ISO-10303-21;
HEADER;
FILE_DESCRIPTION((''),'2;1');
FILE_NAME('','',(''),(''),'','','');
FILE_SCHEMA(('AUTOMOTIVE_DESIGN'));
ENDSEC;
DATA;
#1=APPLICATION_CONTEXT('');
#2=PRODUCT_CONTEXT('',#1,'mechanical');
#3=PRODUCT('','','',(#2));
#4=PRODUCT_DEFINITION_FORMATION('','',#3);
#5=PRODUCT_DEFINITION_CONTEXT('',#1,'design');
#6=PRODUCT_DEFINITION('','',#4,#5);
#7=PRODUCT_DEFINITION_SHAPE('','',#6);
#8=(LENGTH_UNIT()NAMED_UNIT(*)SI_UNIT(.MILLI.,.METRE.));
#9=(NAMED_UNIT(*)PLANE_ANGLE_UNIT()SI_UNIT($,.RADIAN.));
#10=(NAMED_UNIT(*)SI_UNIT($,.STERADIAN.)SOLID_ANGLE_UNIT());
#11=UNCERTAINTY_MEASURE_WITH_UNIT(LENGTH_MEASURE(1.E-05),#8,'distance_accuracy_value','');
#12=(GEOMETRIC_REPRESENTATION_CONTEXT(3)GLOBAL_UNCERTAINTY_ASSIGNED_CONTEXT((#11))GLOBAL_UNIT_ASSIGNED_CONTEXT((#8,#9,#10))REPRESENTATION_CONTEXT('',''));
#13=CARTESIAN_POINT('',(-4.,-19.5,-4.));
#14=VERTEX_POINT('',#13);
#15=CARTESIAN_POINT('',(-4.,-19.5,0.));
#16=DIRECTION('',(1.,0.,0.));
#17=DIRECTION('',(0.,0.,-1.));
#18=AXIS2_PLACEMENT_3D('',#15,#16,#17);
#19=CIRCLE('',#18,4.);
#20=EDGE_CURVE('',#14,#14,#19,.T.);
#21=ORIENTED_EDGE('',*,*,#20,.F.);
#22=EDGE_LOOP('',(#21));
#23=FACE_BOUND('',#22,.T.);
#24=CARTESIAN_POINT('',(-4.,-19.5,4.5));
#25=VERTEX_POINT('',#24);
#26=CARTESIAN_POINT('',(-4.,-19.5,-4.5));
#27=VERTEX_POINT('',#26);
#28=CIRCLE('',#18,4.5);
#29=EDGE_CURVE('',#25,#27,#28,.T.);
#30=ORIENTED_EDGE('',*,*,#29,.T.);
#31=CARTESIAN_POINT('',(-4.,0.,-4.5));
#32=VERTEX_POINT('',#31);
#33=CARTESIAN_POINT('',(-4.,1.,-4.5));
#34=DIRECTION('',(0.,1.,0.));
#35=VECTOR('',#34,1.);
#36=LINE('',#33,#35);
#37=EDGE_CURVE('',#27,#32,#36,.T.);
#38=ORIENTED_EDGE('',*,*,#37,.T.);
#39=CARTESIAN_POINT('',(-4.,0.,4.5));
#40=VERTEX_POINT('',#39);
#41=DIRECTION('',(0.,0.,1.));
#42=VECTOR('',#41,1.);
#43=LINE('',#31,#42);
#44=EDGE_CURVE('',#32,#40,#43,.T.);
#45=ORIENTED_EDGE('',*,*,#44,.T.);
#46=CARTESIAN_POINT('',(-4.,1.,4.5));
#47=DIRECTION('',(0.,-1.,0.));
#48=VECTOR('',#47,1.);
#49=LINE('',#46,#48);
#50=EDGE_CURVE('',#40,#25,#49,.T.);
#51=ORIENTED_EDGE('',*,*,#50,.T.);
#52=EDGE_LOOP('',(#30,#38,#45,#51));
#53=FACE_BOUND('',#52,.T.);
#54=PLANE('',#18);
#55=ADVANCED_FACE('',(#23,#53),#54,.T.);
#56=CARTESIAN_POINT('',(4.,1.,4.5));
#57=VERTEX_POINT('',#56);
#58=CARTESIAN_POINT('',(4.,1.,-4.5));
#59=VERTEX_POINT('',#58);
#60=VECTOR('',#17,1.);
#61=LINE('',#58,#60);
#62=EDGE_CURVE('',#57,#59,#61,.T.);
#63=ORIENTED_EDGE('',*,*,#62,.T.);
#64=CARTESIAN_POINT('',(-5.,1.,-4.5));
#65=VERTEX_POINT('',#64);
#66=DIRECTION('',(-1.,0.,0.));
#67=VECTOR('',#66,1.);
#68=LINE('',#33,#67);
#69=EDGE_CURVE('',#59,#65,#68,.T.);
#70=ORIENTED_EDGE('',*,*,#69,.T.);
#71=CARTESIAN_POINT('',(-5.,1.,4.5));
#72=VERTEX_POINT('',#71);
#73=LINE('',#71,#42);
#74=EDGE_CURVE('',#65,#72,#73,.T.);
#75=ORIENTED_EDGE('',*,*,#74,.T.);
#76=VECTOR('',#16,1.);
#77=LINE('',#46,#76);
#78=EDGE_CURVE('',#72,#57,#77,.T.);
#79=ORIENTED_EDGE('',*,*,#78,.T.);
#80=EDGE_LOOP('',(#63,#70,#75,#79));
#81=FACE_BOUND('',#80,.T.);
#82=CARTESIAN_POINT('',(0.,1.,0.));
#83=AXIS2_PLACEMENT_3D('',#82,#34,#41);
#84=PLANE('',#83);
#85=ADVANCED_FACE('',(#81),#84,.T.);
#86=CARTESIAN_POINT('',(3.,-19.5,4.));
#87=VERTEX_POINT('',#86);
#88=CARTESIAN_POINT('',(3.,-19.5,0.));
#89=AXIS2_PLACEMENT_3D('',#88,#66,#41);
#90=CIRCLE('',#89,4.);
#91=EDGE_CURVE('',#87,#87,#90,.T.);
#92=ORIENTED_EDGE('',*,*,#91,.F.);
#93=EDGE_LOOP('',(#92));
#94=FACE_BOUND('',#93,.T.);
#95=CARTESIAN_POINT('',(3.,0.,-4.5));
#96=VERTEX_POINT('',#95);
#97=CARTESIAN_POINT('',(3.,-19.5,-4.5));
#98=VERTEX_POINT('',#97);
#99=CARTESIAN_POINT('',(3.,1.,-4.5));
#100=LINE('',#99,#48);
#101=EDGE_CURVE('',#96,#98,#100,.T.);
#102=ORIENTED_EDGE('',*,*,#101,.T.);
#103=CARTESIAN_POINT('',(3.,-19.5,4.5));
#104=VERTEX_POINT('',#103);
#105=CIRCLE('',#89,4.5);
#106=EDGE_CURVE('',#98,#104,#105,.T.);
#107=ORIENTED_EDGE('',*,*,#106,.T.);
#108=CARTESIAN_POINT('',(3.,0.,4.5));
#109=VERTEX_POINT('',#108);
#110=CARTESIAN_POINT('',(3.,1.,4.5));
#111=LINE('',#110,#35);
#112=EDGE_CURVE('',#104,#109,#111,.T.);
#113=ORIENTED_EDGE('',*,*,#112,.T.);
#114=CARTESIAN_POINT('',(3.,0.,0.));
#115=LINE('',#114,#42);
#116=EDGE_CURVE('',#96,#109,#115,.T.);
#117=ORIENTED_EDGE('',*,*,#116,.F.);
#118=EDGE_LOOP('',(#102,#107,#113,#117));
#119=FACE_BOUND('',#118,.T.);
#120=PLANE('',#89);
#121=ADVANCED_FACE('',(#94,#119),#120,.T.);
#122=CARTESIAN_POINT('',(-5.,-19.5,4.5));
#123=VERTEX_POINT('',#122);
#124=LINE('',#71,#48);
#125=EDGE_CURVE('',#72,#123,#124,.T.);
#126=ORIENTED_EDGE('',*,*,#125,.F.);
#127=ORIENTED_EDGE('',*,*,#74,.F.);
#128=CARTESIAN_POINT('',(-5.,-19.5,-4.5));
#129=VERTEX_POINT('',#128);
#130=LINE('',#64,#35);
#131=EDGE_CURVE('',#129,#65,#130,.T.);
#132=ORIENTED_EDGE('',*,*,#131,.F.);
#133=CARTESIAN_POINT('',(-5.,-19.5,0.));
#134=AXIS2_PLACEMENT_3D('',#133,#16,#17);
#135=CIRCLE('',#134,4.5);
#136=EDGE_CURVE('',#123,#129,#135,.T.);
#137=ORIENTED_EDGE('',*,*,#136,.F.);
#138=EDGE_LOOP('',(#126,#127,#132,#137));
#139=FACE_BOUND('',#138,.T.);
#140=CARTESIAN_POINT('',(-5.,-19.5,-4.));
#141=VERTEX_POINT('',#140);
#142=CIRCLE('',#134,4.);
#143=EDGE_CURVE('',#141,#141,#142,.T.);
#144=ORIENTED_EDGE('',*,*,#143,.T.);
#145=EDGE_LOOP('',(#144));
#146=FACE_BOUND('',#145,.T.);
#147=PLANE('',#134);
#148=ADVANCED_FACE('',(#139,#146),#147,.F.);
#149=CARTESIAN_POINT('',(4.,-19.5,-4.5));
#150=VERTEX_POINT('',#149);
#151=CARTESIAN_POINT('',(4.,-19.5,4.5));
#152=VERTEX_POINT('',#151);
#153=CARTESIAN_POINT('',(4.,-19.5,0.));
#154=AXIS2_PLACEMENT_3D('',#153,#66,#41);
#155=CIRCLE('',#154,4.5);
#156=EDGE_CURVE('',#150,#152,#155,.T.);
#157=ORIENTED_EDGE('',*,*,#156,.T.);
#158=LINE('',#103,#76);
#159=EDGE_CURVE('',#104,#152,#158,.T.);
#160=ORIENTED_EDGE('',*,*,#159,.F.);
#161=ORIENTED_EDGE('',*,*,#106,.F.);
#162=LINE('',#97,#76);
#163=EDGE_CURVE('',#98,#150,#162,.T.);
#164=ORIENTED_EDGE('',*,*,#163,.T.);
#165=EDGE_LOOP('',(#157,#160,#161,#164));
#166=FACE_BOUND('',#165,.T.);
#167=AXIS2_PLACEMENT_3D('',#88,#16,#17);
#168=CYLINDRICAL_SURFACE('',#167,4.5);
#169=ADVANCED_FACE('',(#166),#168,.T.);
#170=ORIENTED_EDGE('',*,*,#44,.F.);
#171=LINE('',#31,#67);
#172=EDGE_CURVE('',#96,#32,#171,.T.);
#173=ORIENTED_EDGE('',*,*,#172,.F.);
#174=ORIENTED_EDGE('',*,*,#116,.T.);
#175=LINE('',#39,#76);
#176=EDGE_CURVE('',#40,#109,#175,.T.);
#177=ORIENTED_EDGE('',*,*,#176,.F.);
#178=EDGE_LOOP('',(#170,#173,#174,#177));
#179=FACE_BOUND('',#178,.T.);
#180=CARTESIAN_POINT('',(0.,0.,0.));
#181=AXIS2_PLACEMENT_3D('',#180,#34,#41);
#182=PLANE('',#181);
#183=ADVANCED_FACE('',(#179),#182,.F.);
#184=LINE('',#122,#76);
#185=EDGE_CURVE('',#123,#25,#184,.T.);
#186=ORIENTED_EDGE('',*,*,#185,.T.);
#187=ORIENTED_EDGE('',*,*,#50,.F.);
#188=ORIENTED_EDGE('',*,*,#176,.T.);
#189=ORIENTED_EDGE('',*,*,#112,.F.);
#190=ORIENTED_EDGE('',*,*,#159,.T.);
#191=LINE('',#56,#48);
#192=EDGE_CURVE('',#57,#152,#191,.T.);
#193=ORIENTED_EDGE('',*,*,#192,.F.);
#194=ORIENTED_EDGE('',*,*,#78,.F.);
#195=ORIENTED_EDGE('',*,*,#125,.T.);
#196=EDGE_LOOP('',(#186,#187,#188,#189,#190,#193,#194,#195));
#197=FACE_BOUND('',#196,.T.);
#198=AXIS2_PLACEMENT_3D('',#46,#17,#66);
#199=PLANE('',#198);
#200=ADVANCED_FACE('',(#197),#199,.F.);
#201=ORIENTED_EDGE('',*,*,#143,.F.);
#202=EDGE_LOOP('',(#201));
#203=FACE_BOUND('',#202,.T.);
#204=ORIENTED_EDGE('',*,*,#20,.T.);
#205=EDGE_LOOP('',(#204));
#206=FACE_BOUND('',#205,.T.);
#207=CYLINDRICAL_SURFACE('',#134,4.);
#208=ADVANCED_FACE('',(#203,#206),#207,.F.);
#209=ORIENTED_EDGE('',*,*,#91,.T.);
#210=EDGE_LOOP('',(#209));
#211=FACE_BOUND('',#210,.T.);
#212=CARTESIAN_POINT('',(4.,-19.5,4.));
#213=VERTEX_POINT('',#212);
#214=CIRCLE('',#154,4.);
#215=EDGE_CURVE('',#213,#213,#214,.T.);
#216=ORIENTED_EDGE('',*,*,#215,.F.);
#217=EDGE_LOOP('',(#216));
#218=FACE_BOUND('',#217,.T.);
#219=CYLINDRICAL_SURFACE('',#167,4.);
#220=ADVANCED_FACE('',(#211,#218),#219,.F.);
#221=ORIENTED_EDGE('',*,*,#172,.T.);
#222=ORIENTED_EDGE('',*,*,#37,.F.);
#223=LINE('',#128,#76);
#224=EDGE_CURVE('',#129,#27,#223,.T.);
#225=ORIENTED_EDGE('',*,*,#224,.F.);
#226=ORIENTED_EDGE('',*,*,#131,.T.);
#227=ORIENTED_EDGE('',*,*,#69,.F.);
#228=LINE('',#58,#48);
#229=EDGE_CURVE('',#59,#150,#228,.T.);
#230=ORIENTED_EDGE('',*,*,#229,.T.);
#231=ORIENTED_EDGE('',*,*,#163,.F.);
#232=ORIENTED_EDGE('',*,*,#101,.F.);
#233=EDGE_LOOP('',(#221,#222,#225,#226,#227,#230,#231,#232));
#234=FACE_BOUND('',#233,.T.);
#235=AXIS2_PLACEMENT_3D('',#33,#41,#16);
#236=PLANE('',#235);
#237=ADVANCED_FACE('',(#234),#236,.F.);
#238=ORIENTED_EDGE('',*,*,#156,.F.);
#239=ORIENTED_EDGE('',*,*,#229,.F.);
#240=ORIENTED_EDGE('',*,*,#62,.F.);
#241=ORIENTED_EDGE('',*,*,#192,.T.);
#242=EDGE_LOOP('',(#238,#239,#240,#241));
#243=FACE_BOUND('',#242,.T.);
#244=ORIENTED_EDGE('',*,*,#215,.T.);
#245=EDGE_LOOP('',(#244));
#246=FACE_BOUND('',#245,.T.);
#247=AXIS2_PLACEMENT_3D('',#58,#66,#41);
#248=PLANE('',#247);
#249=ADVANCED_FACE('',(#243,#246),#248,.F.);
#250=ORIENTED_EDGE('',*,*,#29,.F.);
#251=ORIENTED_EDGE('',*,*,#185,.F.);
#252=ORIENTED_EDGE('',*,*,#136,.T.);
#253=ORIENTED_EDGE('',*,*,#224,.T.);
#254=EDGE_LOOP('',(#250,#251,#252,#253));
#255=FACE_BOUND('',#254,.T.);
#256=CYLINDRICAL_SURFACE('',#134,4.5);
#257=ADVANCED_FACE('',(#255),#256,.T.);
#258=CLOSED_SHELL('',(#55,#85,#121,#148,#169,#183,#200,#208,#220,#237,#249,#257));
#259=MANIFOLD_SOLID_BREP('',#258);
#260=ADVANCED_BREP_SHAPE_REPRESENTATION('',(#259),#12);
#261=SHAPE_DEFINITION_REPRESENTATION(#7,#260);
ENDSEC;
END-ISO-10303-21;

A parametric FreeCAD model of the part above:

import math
import FreeCAD as App
import Part
import Sketcher
Q = App.Units.Quantity


def add_polygon(sketch, points):
    """Adds a closed chain of lines whose ends are joined by coincident constraints."""
    first, n = sketch.GeometryCount, len(points)
    for a, b in zip(points, points[1:] + points[:1]):
        sketch.addGeometry(Part.LineSegment(App.Vector(*a, 0), App.Vector(*b, 0)), False)
    for i in range(n):
        sketch.addConstraint(Sketcher.Constraint("Coincident", first + i, 2, first + (i + 1) % n, 1))

doc = App.newDocument("Part")
body = doc.addObject("PartDesign::Body", "Body")

sketch1 = doc.addObject("Sketcher::SketchObject", "Sketch")
body.addObject(sketch1)
sketch1.AttachmentSupport = (doc.XZ_Plane, [""])
sketch1.MapMode = "FlatFace"
add_polygon(sketch1, [(-4, -4), (-4, 4), (4, 4), (4, -4)])
sketch1.addConstraint(Sketcher.Constraint("Vertical", 0))
sketch1.addConstraint(Sketcher.Constraint("Horizontal", 1))
sketch1.addConstraint(Sketcher.Constraint("Vertical", 2))
sketch1.addConstraint(Sketcher.Constraint("Horizontal", 3))
sketch1.addConstraint(Sketcher.Constraint("Symmetric", 0, 2, 2, 2, -1, 1))
sketch1.addConstraint(Sketcher.Constraint("DistanceX", 1, 1, 1, 2, Q("8 mm")))
sketch1.addConstraint(Sketcher.Constraint("DistanceY", 0, 1, 0, 2, Q("9 mm")))
pad1 = doc.addObject("PartDesign::Pad", "Pad")
body.addObject(pad1)
pad1.Profile = sketch1
pad1.Length = 1
pad1.Reversed = True

sketch2 = doc.addObject("Sketcher::SketchObject", "Sketch001")
body.addObject(sketch2)
sketch2.AttachmentSupport = (doc.YZ_Plane, [""])
sketch2.MapMode = "FlatFace"
sketch2.AttachmentOffset = App.Placement(App.Vector(0, 0, 4), App.Rotation())
sketch2.addGeometry(Part.LineSegment(App.Vector(-19.5, 4.5, 0), App.Vector(1, 4.5, 0)), False)
sketch2.addGeometry(Part.LineSegment(App.Vector(1, 4.5, 0), App.Vector(1, -4.5, 0)), False)
sketch2.addGeometry(Part.LineSegment(App.Vector(1, -4.5, 0), App.Vector(-19.5, -4.5, 0)), False)
sketch2.addGeometry(Part.ArcOfCircle(Part.Circle(App.Vector(-19.5, 0, 0), App.Vector(0, 0, 1), 4.5), math.radians(90), math.radians(270)), False)
sketch2.addGeometry(Part.Circle(App.Vector(-19.5, 0, 0), App.Vector(0, 0, 1), 4), False)
sketch2.addConstraint(Sketcher.Constraint("Coincident", 0, 2, 1, 1))
sketch2.addConstraint(Sketcher.Constraint("Coincident", 1, 2, 2, 1))
sketch2.addConstraint(Sketcher.Constraint("Tangent", 2, 2, 3, 2))
sketch2.addConstraint(Sketcher.Constraint("Tangent", 3, 1, 0, 1))
sketch2.addConstraint(Sketcher.Constraint("Horizontal", 0))
sketch2.addConstraint(Sketcher.Constraint("Vertical", 1))
sketch2.addConstraint(Sketcher.Constraint("Horizontal", 2))
sketch2.addConstraint(Sketcher.Constraint("Coincident", 4, 3, 3, 3))
sketch2.addConstraint(Sketcher.Constraint("PointOnObject", 3, 3, -1))
sketch2.addConstraint(Sketcher.Constraint("Diameter", 4, Q("8 mm")))
sketch2.addConstraint(Sketcher.Constraint("Radius", 3, Q("4.5 mm")))
sketch2.addConstraint(Sketcher.Constraint("DistanceX", 0, 1, 0, 2, Q("20.5 mm")))
sketch2.addConstraint(Sketcher.Constraint("DistanceX", -1, 1, 0, 2, Q("1 mm")))
pad2 = doc.addObject("PartDesign::Pad", "Pad001")
body.addObject(pad2)
pad2.Profile = sketch2
pad2.Length = 1
pad2.Reversed = True

sketch3 = doc.addObject("Sketcher::SketchObject", "Sketch002")
body.addObject(sketch3)
sketch3.AttachmentSupport = (doc.YZ_Plane, [""])
sketch3.MapMode = "FlatFace"
sketch3.AttachmentOffset = App.Placement(App.Vector(0, 0, -4), App.Rotation())
sketch3.addGeometry(Part.LineSegment(App.Vector(1, 4.5, 0), App.Vector(-19.5, 4.5, 0)), False)
sketch3.addGeometry(Part.ArcOfCircle(Part.Circle(App.Vector(-19.5, 0, 0), App.Vector(0, 0, 1), 4.5), math.radians(90), math.radians(270)), False)
sketch3.addGeometry(Part.LineSegment(App.Vector(-19.5, -4.5, 0), App.Vector(1, -4.5, 0)), False)
sketch3.addGeometry(Part.LineSegment(App.Vector(1, -4.5, 0), App.Vector(1, 4.5, 0)), False)
sketch3.addGeometry(Part.Circle(App.Vector(-19.5, 0, 0), App.Vector(0, 0, 1), 4), False)
sketch3.addConstraint(Sketcher.Constraint("Tangent", 0, 2, 1, 1))
sketch3.addConstraint(Sketcher.Constraint("Tangent", 1, 2, 2, 1))
sketch3.addConstraint(Sketcher.Constraint("Coincident", 2, 2, 3, 1))
sketch3.addConstraint(Sketcher.Constraint("Coincident", 3, 2, 0, 1))
sketch3.addConstraint(Sketcher.Constraint("Horizontal", 0))
sketch3.addConstraint(Sketcher.Constraint("Horizontal", 2))
sketch3.addConstraint(Sketcher.Constraint("Vertical", 3))
sketch3.addConstraint(Sketcher.Constraint("Coincident", 4, 3, 1, 3))
sketch3.addConstraint(Sketcher.Constraint("PointOnObject", 1, 3, -1))
sketch3.addConstraint(Sketcher.Constraint("Diameter", 4, Q("8 mm")))
sketch3.addConstraint(Sketcher.Constraint("Radius", 1, Q("4.5 mm")))
sketch3.addConstraint(Sketcher.Constraint("DistanceX", 0, 2, 0, 1, Q("20.5 mm")))
sketch3.addConstraint(Sketcher.Constraint("DistanceX", -1, 1, 2, 2, Q("1 mm")))
pad3 = doc.addObject("PartDesign::Pad", "Pad002")
body.addObject(pad3)
pad3.Profile = sketch3
pad3.Length = 1
pad3.Reversed = True

doc.recompute()
